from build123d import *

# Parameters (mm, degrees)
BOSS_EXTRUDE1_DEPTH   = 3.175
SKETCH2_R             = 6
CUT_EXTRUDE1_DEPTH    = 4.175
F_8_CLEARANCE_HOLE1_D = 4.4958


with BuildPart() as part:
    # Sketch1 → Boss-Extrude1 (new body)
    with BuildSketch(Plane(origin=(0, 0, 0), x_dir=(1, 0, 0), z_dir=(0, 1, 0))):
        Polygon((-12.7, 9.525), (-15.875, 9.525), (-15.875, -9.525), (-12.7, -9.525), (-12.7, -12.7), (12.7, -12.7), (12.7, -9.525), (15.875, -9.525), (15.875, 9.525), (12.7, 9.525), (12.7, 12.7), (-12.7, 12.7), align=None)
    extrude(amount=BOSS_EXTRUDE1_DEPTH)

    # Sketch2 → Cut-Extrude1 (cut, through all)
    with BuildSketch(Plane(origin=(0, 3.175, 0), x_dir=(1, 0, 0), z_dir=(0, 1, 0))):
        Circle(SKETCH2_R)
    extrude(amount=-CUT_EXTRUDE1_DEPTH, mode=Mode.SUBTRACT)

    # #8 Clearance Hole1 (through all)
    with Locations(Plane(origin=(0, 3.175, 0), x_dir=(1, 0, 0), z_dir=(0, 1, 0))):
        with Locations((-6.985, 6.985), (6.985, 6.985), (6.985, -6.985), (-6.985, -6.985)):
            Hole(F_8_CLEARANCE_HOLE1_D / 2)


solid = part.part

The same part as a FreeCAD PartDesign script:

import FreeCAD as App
import Part
import Sketcher

V = App.Vector
Q = App.Units.Quantity

doc = App.newDocument("Part")
params = doc.addObject("Spreadsheet::Sheet", "Params")
for row, (alias, value) in enumerate([
    ("sketch1_width", "1 in"),
    ("sketch1_height", "0.75 in"),
    ("pad1_length", "0.125 in"),
    ("sketch3_diameter", "0.177 in"),
    ("hole_diameter", "0.177 in"),
], start=1):
    params.set(f"A{row}", alias)
    params.set(f"B{row}", "=" + value)
    params.setAlias(f"B{row}", alias)

body = doc.addObject("PartDesign::Body", "Body")

# Sketch on XZ plane
sketch1 = body.newObject("Sketcher::SketchObject", "Sketch")
sketch1.AttachmentSupport = (doc.getObject("XZ_Plane"), [""])
sketch1.MapMode = "FlatFace"
sketch1.addGeometry([
    Part.LineSegment(V(-12.7, -9.525, 0), V(-15.875, -9.525, 0)),  # 0
    Part.LineSegment(V(-15.875, -9.525, 0), V(-15.875, 9.525, 0)),  # 1
    Part.LineSegment(V(-15.875, 9.525, 0), V(-12.7, 9.525, 0)),  # 2
    Part.LineSegment(V(-12.7, 9.525, 0), V(-12.7, 12.7, 0)),  # 3
    Part.LineSegment(V(-12.7, 12.7, 0), V(12.7, 12.7, 0)),  # 4
    Part.LineSegment(V(12.7, 12.7, 0), V(12.7, 9.525, 0)),  # 5
    Part.LineSegment(V(12.7, 9.525, 0), V(15.875, 9.525, 0)),  # 6
    Part.LineSegment(V(15.875, 9.525, 0), V(15.875, -9.525, 0)),  # 7
    Part.LineSegment(V(15.875, -9.525, 0), V(12.7, -9.525, 0)),  # 8
    Part.LineSegment(V(12.7, -9.525, 0), V(12.7, -12.7, 0)),  # 9
    Part.LineSegment(V(12.7, -12.7, 0), V(-12.7, -12.7, 0)),  # 10
    Part.LineSegment(V(-12.7, -12.7, 0), V(-12.7, -9.525, 0)),  # 11
], False)
sketch1.addConstraint([
    Sketcher.Constraint("Coincident", 0, 2, 1, 1),
    Sketcher.Constraint("Coincident", 1, 2, 2, 1),
    Sketcher.Constraint("Coincident", 2, 2, 3, 1),
    Sketcher.Constraint("Coincident", 3, 2, 4, 1),
    Sketcher.Constraint("Coincident", 4, 2, 5, 1),
    Sketcher.Constraint("Coincident", 5, 2, 6, 1),
    Sketcher.Constraint("Coincident", 6, 2, 7, 1),
    Sketcher.Constraint("Coincident", 7, 2, 8, 1),
    Sketcher.Constraint("Coincident", 8, 2, 9, 1),
    Sketcher.Constraint("Coincident", 9, 2, 10, 1),
    Sketcher.Constraint("Coincident", 10, 2, 11, 1),
    Sketcher.Constraint("Coincident", 11, 2, 0, 1),
    Sketcher.Constraint("Horizontal", 0),
    Sketcher.Constraint("Vertical", 1),
    Sketcher.Constraint("Horizontal", 2),
    Sketcher.Constraint("Vertical", 3),
    Sketcher.Constraint("Horizontal", 4),
    Sketcher.Constraint("Vertical", 5),
    Sketcher.Constraint("Horizontal", 6),
    Sketcher.Constraint("Vertical", 7),
    Sketcher.Constraint("Horizontal", 8),
    Sketcher.Constraint("Vertical", 9),
    Sketcher.Constraint("Horizontal", 10),
    Sketcher.Constraint("Vertical", 11),
    Sketcher.Constraint("Symmetric", 0, 2, 6, 2, -1, 1),
    Sketcher.Constraint("Symmetric", 2, 2, 8, 2, -1, 1),
    Sketcher.Constraint("Symmetric", 4, 2, 10, 2, -1, 1),
    Sketcher.Constraint("Symmetric", 2, 2, 5, 2, -2),
    Sketcher.Constraint("Equal", 8, 3),
    Sketcher.Constraint("DistanceX", 4, 1, 4, 2, Q("1 in")),
    Sketcher.Constraint("DistanceY", 9, 2, 4, 2, Q("1 in")),
    Sketcher.Constraint("DistanceY", 1, 1, 1, 2, Q("0.75 in")),
])
sketch1.setExpression("Constraints[29]", "Params.sketch1_width")
sketch1.setExpression("Constraints[31]", "Params.sketch1_height")
pad1 = body.newObject("PartDesign::Pad", "Pad")
pad1.Profile = sketch1
pad1.setExpression("Length", "Params.pad1_length")
pad1.Reversed = True

# Sketch on XZ plane
sketch2 = body.newObject("Sketcher::SketchObject", "Sketch001")
sketch2.AttachmentSupport = (doc.getObject("XZ_Plane"), [""])
sketch2.MapMode = "FlatFace"
sketch2.AttachmentOffset = App.Placement(V(0, 0, -0.125 * 25.4), App.Rotation())
sketch2.addGeometry(Part.Circle(V(0, 0, 0), V(0, 0, 1), 6), False)
sketch2.addConstraint([
    Sketcher.Constraint("Coincident", 0, 3, -1, 1),
    Sketcher.Constraint("Diameter", 0, 12.0),
])
pocket1 = body.newObject("PartDesign::Pocket", "Pocket")
pocket1.Profile = sketch2
pocket1.Type = "ThroughAll"
pocket1.Reversed = True

# Sketch on XZ plane
sketch3 = body.newObject("Sketcher::SketchObject", "Sketch002")
sketch3.AttachmentSupport = (doc.getObject("XZ_Plane"), [""])
sketch3.MapMode = "FlatFace"
sketch3.AttachmentOffset = App.Placement(V(0, 0, -0.125 * 25.4), App.Rotation())
sketch3.addGeometry([
    Part.Circle(V(-6.985, -6.985, 0), V(0, 0, 1), 2.2479),
    Part.Circle(V(6.985, -6.985, 0), V(0, 0, 1), 2.2479),
    Part.Circle(V(6.985, 6.985, 0), V(0, 0, 1), 2.2479),
    Part.Circle(V(-6.985, 6.985, 0), V(0, 0, 1), 2.2479),
], False)
sketch3.addConstraint([
    Sketcher.Constraint("Equal", 0, 1),
    Sketcher.Constraint("Equal", 1, 2),
    Sketcher.Constraint("Equal", 2, 3),
    Sketcher.Constraint("Symmetric", 0, 3, 2, 3, -1, 1),
    Sketcher.Constraint("Symmetric", 1, 3, 3, 3, -1, 1),
    Sketcher.Constraint("Symmetric", 0, 3, 1, 3, -2),
    Sketcher.Constraint("Diameter", 0, Q("0.177 in")),
    Sketcher.Constraint("DistanceX", 0, 3, 1, 3, Q("0.55 in")),
    Sketcher.Constraint("DistanceY", 1, 3, 2, 3, Q("0.55 in")),
])
sketch3.setExpression("Constraints[6]", "Params.sketch3_diameter")
doc.recompute()
hole = body.newObject("PartDesign::Hole", "Hole")
hole.Profile = sketch3
hole.ThreadType = "None"
hole.setExpression("Diameter", "Params.hole_diameter")
hole.DepthType = "ThroughAll"
hole.Reversed = True

doc.recompute()
